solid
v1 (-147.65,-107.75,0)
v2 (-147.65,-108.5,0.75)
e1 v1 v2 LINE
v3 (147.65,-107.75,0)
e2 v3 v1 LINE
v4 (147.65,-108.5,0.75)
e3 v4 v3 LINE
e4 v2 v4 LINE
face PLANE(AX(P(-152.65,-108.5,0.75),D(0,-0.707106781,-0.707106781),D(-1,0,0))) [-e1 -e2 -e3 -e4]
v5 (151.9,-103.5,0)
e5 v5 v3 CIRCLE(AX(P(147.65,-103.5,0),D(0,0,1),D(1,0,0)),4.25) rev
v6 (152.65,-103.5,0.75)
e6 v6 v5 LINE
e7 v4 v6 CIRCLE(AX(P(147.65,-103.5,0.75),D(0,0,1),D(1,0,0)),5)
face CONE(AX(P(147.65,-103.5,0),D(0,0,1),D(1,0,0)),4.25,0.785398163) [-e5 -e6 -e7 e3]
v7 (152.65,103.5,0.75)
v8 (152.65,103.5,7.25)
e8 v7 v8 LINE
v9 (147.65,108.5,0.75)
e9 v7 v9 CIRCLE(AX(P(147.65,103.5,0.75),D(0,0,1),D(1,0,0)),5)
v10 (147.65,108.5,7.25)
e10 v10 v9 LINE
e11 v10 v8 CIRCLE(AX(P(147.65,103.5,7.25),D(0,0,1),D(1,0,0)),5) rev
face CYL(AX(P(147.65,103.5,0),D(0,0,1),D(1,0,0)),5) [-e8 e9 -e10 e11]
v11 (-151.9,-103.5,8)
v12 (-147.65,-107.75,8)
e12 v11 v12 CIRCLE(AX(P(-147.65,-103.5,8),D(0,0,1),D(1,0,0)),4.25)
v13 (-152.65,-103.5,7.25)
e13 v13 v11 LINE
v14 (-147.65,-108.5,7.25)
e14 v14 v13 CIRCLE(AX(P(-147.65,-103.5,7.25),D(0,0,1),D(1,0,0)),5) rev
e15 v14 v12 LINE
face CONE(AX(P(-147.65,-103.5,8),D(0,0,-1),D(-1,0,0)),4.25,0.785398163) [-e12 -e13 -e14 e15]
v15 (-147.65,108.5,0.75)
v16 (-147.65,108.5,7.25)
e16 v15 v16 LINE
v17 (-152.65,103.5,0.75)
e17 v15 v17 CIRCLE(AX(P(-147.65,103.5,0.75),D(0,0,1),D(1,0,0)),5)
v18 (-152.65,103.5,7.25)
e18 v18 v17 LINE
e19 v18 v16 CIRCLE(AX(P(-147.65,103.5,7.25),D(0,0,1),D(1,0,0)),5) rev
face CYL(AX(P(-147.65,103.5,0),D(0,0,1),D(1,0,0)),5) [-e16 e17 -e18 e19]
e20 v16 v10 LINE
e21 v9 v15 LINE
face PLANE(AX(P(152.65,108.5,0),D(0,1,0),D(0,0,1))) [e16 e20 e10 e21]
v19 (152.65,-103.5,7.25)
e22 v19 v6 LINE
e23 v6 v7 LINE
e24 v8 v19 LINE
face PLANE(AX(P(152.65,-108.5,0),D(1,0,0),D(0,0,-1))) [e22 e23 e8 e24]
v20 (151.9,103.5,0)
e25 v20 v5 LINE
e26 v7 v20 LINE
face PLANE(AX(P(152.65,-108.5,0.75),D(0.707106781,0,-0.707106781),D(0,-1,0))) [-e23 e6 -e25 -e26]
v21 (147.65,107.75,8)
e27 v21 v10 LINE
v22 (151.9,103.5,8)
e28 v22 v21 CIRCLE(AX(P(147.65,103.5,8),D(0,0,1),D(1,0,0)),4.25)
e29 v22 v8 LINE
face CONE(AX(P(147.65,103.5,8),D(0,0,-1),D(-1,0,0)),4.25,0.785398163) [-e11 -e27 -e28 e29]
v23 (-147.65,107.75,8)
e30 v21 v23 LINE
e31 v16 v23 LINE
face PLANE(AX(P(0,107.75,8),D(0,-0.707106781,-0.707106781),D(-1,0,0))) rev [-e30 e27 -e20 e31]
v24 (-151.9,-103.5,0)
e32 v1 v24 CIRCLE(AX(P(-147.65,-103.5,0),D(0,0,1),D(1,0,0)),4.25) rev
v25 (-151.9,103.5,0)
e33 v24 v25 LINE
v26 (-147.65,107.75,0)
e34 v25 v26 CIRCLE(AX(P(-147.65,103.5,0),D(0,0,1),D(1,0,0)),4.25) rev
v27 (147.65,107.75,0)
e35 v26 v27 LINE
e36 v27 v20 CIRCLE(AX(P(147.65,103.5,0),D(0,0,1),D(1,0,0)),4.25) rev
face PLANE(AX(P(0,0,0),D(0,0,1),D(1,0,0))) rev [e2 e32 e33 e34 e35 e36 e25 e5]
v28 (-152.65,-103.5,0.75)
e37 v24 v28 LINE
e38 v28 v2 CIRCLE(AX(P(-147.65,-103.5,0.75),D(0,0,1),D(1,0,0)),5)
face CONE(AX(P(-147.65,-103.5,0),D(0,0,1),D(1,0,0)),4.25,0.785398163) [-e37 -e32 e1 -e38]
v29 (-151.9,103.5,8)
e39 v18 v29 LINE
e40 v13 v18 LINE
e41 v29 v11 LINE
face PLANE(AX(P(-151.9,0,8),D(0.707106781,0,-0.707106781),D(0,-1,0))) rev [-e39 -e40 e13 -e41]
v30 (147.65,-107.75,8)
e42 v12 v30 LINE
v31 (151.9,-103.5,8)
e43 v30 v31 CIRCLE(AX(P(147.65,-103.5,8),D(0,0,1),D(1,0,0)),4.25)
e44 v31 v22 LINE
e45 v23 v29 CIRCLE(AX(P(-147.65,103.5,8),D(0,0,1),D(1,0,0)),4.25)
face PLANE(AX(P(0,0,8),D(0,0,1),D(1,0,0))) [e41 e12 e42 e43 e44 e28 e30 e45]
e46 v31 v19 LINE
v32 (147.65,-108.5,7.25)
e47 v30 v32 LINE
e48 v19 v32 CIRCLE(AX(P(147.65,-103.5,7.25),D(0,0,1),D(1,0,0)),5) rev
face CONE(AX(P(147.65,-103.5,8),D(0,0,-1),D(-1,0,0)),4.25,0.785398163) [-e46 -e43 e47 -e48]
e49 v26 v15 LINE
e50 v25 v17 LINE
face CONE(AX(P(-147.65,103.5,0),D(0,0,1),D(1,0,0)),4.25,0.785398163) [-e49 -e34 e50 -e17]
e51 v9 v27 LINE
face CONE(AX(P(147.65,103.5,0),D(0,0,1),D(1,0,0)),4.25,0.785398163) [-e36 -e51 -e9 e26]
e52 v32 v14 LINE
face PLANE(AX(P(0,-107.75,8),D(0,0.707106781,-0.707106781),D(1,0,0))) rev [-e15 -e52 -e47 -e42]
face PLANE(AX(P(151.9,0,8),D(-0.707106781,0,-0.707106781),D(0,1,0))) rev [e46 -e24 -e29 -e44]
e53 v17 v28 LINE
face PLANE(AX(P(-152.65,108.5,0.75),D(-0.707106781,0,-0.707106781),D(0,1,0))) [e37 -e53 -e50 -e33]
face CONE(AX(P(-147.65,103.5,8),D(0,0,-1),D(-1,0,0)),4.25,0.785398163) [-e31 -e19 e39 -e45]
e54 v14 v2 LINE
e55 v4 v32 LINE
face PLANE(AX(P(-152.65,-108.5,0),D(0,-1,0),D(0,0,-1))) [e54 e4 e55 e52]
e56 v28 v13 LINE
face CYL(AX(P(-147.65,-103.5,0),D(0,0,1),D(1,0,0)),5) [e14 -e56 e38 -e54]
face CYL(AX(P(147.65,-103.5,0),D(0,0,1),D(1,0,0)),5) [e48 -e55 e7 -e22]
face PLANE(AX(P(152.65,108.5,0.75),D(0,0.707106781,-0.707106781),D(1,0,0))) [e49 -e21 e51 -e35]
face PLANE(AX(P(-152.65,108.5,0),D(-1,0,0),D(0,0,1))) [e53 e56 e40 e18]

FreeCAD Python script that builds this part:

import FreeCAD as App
import Part
import Sketcher
from FreeCAD import Vector


def edges_at(feature, points):
    """Names of the edges that pass closest to the given points."""
    edges = feature.Shape.Edges
    near = lambda p: min(range(len(edges)), key=lambda i: edges[i].distToShape(Part.Vertex(*p))[0])
    return sorted({f"Edge{near(p) + 1}" for p in points})

doc = App.newDocument("Part")
body = doc.addObject("PartDesign::Body", "Body")

sketch1 = body.newObject("Sketcher::SketchObject", "Sketch")
sketch1.AttachmentSupport = (doc.getObject("XY_Plane"), [""])
sketch1.MapMode = "FlatFace"
sketch1.AttachmentOffset = App.Placement(Vector(0, 0, 8), App.Rotation())
sketch1.addGeometry([
    Part.LineSegment(Vector(-153, 108, 0), Vector(-153, -108, 0)),
    Part.LineSegment(Vector(-153, -108, 0), Vector(153, -108, 0)),
    Part.LineSegment(Vector(153, -108, 0), Vector(153, 108, 0)),
    Part.LineSegment(Vector(153, 108, 0), Vector(-153, 108, 0)),
], False)
sketch1.addConstraint([
    Sketcher.Constraint("Coincident", 0, 2, 1, 1),
    Sketcher.Constraint("Coincident", 1, 2, 2, 1),
    Sketcher.Constraint("Coincident", 2, 2, 3, 1),
    Sketcher.Constraint("Coincident", 3, 2, 0, 1),
    Sketcher.Constraint("Vertical", 0),
    Sketcher.Constraint("Horizontal", 1),
    Sketcher.Constraint("Vertical", 2),
    Sketcher.Constraint("Horizontal", 3),
    Sketcher.Constraint("Symmetric", 0, 2, 2, 2, -1, 1),
    Sketcher.Constraint("DistanceY", 0, 2, 0, 1, 217.0),
    Sketcher.Constraint("DistanceX", 1, 1, 1, 2, 305.3),
])
pad1 = body.newObject("PartDesign::Pad", "Pad")
pad1.Profile = sketch1
pad1.Length = 8
pad1.Reversed = True
doc.recompute()

fillet = body.newObject("PartDesign::Fillet", "Fillet")
fillet.Base = (pad1, edges_at(pad1, [
    (-152.65, 108.5, 4),
    (152.65, 108.5, 4),
    (152.65, -108.5, 4),
    (-152.65, -108.5, 4),
]))
fillet.Radius = 5
doc.recompute()

chamfer = body.newObject("PartDesign::Chamfer", "Chamfer")
chamfer.Base = (fillet, edges_at(fillet, [
    (152.65, 0, 8),
    (152.65, 0, 0),
    (-152.65, 0, 8),
    (0, -108.5, 8),
    (0, 108.5, 8),
    (-151.186, -107.036, 8),
    (-151.186, 107.036, 8),
    (151.186, -107.036, 8),
    (151.186, 107.036, 8),
    (0, 108.5, 0),
    (-152.65, 0, 0),
    (0, -108.5, 0),
    (-151.186, -107.036, 0),
    (-151.186, 107.036, 0),
    (151.186, -107.036, 0),
    (151.186, 107.036, 0),
]))
chamfer.Size = 0.75

doc.recompute()
